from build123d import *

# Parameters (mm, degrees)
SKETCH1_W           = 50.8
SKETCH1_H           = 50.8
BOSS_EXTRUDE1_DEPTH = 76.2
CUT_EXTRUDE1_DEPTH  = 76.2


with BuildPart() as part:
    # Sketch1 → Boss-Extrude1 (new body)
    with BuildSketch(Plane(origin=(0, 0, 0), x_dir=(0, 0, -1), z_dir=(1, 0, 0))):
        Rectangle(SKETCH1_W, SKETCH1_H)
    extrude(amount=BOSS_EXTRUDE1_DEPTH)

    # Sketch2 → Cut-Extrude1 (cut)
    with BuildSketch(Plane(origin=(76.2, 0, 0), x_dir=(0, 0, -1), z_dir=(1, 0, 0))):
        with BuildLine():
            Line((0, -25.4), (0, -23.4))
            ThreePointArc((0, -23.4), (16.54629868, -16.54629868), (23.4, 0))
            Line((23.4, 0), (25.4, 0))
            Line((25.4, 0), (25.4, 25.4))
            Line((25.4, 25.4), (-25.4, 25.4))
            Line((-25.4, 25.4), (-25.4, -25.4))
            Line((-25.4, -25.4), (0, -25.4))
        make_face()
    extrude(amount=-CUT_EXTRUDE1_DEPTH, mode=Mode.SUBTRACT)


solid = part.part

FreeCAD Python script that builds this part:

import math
import FreeCAD as App
import Part
import Sketcher

V = App.Vector
Q = App.Units.Quantity

doc = App.newDocument("Part")
params = doc.addObject("Spreadsheet::Sheet", "Params")
for row, (alias, value) in enumerate([
    ("sketch1_width", "2 in"),
    ("pad1_length", "3 in"),
    ("sketch2_width", "1 in"),
    ("pocket1_length", "3 in"),
], start=1):
    params.set(f"A{row}", alias)
    params.set(f"B{row}", "=" + value)
    params.setAlias(f"B{row}", alias)

body = doc.addObject("PartDesign::Body", "Body")

# Sketch on YZ plane
sketch1 = body.newObject("Sketcher::SketchObject", "Sketch")
sketch1.AttachmentSupport = (doc.getObject("YZ_Plane"), [""])
sketch1.MapMode = "FlatFace"
sketch1.addGeometry([
    Part.LineSegment(V(25, 25, 0), V(-25, 25, 0)),
    Part.LineSegment(V(-25, 25, 0), V(-25, -25, 0)),
    Part.LineSegment(V(-25, -25, 0), V(25, -25, 0)),
    Part.LineSegment(V(25, -25, 0), V(25, 25, 0)),
], False)
sketch1.addConstraint([
    Sketcher.Constraint("Coincident", 0, 2, 1, 1),
    Sketcher.Constraint("Coincident", 1, 2, 2, 1),
    Sketcher.Constraint("Coincident", 2, 2, 3, 1),
    Sketcher.Constraint("Coincident", 3, 2, 0, 1),
    Sketcher.Constraint("Horizontal", 0),
    Sketcher.Constraint("Vertical", 1),
    Sketcher.Constraint("Horizontal", 2),
    Sketcher.Constraint("Vertical", 3),
    Sketcher.Constraint("Symmetric", 0, 2, 2, 2, -1, 1),
    Sketcher.Constraint("Equal", 2, 1),
    Sketcher.Constraint("DistanceX", 0, 2, 0, 1, Q("2 in")),
])
sketch1.setExpression("Constraints[10]", "Params.sketch1_width")
pad1 = body.newObject("PartDesign::Pad", "Pad")
pad1.Profile = sketch1
pad1.setExpression("Length", "Params.pad1_length")

# Sketch on YZ plane
sketch2 = body.newObject("Sketcher::SketchObject", "Sketch001")
sketch2.AttachmentSupport = (doc.getObject("YZ_Plane"), [""])
sketch2.MapMode = "FlatFace"
sketch2.AttachmentOffset = App.Placement(V(0, 0, 3 * 25.4), App.Rotation())
sketch2.addGeometry([
    Part.LineSegment(V(-25.4, 0, 0), V(-23.4, 0, 0)),  # 0
    Part.ArcOfCircle(Part.Circle(V(0, 0, 0), V(0, 0, 1), 23.4), math.radians(180), math.radians(270)),  # 1
    Part.LineSegment(V(0, -23.4, 0), V(0, -25.4, 0)),  # 2
    Part.LineSegment(V(0, -25.4, 0), V(25.4, -25.4, 0)),  # 3
    Part.LineSegment(V(25.4, -25.4, 0), V(25.4, 25.4, 0)),  # 4
    Part.LineSegment(V(25.4, 25.4, 0), V(-25.4, 25.4, 0)),  # 5
    Part.LineSegment(V(-25.4, 25.4, 0), V(-25.4, 0, 0)),  # 6
], False)
sketch2.addConstraint([
    Sketcher.Constraint("Coincident", 0, 2, 1, 1),
    Sketcher.Constraint("Coincident", 1, 2, 2, 1),
    Sketcher.Constraint("Coincident", 2, 2, 3, 1),
    Sketcher.Constraint("Coincident", 3, 2, 4, 1),
    Sketcher.Constraint("Coincident", 4, 2, 5, 1),
    Sketcher.Constraint("Coincident", 5, 2, 6, 1),
    Sketcher.Constraint("Coincident", 6, 2, 0, 1),
    Sketcher.Constraint("Horizontal", 0),
    Sketcher.Constraint("Vertical", 2),
    Sketcher.Constraint("Horizontal", 3),
    Sketcher.Constraint("Vertical", 4),
    Sketcher.Constraint("Horizontal", 5),
    Sketcher.Constraint("Vertical", 6),
    Sketcher.Constraint("Coincident", 1, 3, -1, 1),
    Sketcher.Constraint("Symmetric", 3, 2, 5, 2, -1, 1),
    Sketcher.Constraint("PointOnObject", 0, 2, -1),
    Sketcher.Constraint("PointOnObject", 1, 2, -2),
    Sketcher.Constraint("Equal", 0, 2),
    Sketcher.Constraint("DistanceX", 3, 1, 3, 2, Q("1 in")),
    Sketcher.Constraint("Radius", 1, Q("23.4 mm")),
])
sketch2.setExpression("Constraints[18]", "Params.sketch2_width")
pocket1 = body.newObject("PartDesign::Pocket", "Pocket")
pocket1.Profile = sketch2
pocket1.setExpression("Length", "Params.pocket1_length")

doc.recompute()
